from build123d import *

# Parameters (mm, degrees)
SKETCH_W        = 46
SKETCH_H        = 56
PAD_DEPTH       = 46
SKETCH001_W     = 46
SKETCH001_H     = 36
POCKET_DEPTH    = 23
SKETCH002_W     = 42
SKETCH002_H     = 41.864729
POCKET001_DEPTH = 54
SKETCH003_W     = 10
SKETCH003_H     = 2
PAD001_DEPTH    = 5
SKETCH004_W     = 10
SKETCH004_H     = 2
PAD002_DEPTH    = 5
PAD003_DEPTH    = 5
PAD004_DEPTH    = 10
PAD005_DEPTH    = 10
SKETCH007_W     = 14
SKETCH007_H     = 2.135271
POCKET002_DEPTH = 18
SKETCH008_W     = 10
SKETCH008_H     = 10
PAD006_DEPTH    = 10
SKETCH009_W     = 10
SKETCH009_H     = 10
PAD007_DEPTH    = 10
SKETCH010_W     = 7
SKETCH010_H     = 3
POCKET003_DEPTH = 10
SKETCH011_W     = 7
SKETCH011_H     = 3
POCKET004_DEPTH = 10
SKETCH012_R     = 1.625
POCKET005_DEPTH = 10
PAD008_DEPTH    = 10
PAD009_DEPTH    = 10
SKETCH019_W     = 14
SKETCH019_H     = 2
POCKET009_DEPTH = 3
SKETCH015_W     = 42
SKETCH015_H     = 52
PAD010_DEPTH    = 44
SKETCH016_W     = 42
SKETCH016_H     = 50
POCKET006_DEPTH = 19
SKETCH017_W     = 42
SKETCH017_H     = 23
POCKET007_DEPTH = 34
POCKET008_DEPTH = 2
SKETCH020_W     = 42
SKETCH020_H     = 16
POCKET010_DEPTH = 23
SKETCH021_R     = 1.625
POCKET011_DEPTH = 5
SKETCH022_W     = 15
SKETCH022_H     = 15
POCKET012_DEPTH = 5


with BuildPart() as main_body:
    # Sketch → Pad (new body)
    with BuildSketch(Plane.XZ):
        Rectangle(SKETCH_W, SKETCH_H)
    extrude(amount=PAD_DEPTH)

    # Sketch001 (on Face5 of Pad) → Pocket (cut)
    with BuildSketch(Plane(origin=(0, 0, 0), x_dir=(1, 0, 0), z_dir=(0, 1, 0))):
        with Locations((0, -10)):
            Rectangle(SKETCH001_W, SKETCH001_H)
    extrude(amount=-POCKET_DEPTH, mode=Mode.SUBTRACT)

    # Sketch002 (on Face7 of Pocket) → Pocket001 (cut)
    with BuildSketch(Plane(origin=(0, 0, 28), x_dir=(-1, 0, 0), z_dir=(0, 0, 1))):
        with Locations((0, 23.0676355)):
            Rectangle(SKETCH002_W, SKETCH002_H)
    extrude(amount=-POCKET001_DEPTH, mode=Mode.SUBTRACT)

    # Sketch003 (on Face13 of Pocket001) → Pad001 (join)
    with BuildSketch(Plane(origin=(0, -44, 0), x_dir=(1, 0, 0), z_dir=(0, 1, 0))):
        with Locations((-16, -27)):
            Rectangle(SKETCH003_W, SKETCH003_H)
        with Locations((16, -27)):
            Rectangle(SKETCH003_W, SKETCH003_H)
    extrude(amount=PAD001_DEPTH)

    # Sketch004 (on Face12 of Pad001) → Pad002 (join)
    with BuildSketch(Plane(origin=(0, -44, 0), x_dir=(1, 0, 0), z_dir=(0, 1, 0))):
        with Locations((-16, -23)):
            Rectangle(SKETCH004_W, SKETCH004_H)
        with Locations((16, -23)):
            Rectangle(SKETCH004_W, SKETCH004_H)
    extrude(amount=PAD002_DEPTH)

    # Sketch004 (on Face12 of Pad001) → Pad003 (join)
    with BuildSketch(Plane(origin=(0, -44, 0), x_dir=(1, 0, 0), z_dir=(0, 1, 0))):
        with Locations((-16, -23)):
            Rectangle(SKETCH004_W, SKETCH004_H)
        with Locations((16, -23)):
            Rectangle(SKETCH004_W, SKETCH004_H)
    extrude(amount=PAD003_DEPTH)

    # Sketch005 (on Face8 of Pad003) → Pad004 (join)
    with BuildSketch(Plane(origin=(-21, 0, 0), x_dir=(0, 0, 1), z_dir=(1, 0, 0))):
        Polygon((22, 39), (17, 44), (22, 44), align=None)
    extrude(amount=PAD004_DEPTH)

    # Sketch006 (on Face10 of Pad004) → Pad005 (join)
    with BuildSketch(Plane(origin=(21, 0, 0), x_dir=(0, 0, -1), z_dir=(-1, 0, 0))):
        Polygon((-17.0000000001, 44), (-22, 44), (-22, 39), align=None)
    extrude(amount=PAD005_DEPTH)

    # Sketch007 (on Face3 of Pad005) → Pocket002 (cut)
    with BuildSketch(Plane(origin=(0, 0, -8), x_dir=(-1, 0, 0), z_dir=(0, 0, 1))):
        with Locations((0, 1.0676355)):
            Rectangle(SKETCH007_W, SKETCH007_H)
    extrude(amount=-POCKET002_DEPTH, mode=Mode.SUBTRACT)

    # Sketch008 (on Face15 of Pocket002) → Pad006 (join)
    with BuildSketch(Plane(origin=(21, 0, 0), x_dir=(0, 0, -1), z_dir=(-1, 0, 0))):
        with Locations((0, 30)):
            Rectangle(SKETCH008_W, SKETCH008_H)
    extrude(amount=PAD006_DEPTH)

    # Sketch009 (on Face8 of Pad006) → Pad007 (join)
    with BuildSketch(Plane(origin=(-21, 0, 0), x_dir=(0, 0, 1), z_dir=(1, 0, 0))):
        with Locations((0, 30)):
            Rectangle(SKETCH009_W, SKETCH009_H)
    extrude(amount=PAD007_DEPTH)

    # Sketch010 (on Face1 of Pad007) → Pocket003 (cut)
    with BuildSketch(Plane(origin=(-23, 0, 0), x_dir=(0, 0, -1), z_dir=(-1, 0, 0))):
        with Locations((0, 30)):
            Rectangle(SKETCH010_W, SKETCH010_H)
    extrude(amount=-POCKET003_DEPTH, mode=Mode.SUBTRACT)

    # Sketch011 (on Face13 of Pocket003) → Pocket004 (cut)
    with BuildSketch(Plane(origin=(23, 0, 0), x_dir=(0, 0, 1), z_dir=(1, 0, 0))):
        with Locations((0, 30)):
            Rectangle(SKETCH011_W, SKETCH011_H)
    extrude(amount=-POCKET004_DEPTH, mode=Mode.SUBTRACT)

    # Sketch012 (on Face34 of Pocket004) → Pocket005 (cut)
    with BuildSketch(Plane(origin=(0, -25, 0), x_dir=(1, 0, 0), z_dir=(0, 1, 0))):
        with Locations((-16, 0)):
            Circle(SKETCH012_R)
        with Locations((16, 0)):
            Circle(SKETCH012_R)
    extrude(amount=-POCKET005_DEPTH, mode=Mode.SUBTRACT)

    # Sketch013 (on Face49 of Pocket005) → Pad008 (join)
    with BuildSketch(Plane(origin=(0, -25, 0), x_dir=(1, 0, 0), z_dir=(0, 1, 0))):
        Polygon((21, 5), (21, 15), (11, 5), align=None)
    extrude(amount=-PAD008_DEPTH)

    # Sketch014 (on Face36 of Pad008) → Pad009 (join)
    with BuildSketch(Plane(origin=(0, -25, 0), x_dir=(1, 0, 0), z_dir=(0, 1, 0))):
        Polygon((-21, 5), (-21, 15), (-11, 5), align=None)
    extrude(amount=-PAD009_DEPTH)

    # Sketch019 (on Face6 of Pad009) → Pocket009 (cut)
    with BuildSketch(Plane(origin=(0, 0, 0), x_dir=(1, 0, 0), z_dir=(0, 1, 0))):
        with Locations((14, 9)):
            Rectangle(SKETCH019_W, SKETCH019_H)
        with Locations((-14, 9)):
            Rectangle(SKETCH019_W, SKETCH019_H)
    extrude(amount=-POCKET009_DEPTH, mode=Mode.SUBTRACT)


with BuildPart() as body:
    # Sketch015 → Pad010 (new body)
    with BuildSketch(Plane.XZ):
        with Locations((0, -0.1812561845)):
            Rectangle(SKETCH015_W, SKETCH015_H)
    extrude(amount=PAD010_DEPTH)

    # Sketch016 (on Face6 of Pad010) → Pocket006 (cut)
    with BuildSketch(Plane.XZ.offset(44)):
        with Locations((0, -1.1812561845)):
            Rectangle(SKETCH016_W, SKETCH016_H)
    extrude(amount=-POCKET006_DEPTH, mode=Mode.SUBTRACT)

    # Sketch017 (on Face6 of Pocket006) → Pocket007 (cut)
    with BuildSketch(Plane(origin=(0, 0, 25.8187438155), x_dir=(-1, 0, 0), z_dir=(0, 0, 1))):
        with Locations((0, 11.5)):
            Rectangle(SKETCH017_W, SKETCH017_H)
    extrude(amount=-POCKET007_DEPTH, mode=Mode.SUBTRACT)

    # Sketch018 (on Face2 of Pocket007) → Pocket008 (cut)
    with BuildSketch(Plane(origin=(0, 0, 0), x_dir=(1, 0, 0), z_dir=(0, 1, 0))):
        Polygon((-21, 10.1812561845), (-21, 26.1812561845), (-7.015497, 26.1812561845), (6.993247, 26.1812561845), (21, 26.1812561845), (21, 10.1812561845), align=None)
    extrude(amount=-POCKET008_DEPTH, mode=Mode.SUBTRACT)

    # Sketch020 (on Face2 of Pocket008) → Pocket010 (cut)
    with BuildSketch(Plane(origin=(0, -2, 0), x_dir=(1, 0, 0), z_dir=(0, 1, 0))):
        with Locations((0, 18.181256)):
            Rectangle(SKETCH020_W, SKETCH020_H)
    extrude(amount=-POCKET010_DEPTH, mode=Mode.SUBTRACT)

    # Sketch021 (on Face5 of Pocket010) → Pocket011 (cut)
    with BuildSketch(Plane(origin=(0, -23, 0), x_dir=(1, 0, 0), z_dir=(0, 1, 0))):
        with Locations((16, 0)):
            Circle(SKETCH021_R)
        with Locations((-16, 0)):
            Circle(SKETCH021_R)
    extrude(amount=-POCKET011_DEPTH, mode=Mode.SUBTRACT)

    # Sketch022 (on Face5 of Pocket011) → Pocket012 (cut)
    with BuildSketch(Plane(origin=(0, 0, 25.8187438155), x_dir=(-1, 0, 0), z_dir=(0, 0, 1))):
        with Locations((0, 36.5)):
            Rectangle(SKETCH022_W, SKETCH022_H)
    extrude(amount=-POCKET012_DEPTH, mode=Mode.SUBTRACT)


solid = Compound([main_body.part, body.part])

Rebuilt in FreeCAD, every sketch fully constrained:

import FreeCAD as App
import Part
import Sketcher
Q = App.Units.Quantity

doc = App.newDocument("Part")
body = doc.addObject("PartDesign::Body", "Body")

sketch1 = doc.addObject("Sketcher::SketchObject", "Sketch")
body.addObject(sketch1)
sketch1.AttachmentSupport = (doc.XZ_Plane, [""])
sketch1.MapMode = "FlatFace"
sketch1.addGeometry([
    Part.LineSegment(App.Vector(-23, 28, 0), App.Vector(-23, -28, 0)),
    Part.LineSegment(App.Vector(-23, -28, 0), App.Vector(23, -28, 0)),
    Part.LineSegment(App.Vector(23, -28, 0), App.Vector(23, 28, 0)),
    Part.LineSegment(App.Vector(23, 28, 0), App.Vector(-23, 28, 0)),
], False)
sketch1.addConstraint([
    Sketcher.Constraint("Coincident", 0, 2, 1, 1),
    Sketcher.Constraint("Coincident", 1, 2, 2, 1),
    Sketcher.Constraint("Coincident", 2, 2, 3, 1),
    Sketcher.Constraint("Coincident", 3, 2, 0, 1),
    Sketcher.Constraint("Vertical", 0),
    Sketcher.Constraint("Horizontal", 1),
    Sketcher.Constraint("Vertical", 2),
    Sketcher.Constraint("Horizontal", 3),
    Sketcher.Constraint("Symmetric", 0, 2, 2, 2, -1, 1),
    Sketcher.Constraint("DistanceX", 1, 1, 1, 2, Q("46 mm")),
    Sketcher.Constraint("DistanceY", 0, 2, 0, 1, Q("56 mm")),
])
pad1 = doc.addObject("PartDesign::Pad", "Pad")
body.addObject(pad1)
pad1.Profile = sketch1
pad1.Length = 46

sketch2 = doc.addObject("Sketcher::SketchObject", "Sketch001")
body.addObject(sketch2)
sketch2.AttachmentSupport = (doc.XZ_Plane, [""])
sketch2.MapMode = "FlatFace"
sketch2.addGeometry([
    Part.LineSegment(App.Vector(-23, -8, 0), App.Vector(-23, 28, 0)),
    Part.LineSegment(App.Vector(-23, 28, 0), App.Vector(23, 28, 0)),
    Part.LineSegment(App.Vector(23, 28, 0), App.Vector(23, -8, 0)),
    Part.LineSegment(App.Vector(23, -8, 0), App.Vector(-23, -8, 0)),
], False)
sketch2.addConstraint([
    Sketcher.Constraint("Coincident", 0, 2, 1, 1),
    Sketcher.Constraint("Coincident", 1, 2, 2, 1),
    Sketcher.Constraint("Coincident", 2, 2, 3, 1),
    Sketcher.Constraint("Coincident", 3, 2, 0, 1),
    Sketcher.Constraint("Vertical", 0),
    Sketcher.Constraint("Horizontal", 1),
    Sketcher.Constraint("Vertical", 2),
    Sketcher.Constraint("Horizontal", 3),
    Sketcher.Constraint("DistanceX", 1, 1, 1, 2, Q("46 mm")),
    Sketcher.Constraint("DistanceY", 0, 1, 0, 2, Q("36 mm")),
    Sketcher.Constraint("DistanceX", 0, 2, -1, 1, Q("23 mm")),
    Sketcher.Constraint("DistanceY", -1, 1, 0, 2, Q("28 mm")),
])
pocket1 = doc.addObject("PartDesign::Pocket", "Pocket")
body.addObject(pocket1)
pocket1.Profile = sketch2
pocket1.Length = 23
pocket1.Reversed = True

sketch3 = doc.addObject("Sketcher::SketchObject", "Sketch002")
body.addObject(sketch3)
sketch3.AttachmentSupport = (doc.XY_Plane, [""])
sketch3.MapMode = "FlatFace"
sketch3.AttachmentOffset = App.Placement(App.Vector(0, 0, 28), App.Rotation())
sketch3.addGeometry([
    Part.LineSegment(App.Vector(21, -44, 0), App.Vector(21, -2, 0)),
    Part.LineSegment(App.Vector(21, -2, 0), App.Vector(-21, -2, 0)),
    Part.LineSegment(App.Vector(-21, -2, 0), App.Vector(-21, -44, 0)),
    Part.LineSegment(App.Vector(-21, -44, 0), App.Vector(21, -44, 0)),
], False)
sketch3.addConstraint([
    Sketcher.Constraint("Coincident", 0, 2, 1, 1),
    Sketcher.Constraint("Coincident", 1, 2, 2, 1),
    Sketcher.Constraint("Coincident", 2, 2, 3, 1),
    Sketcher.Constraint("Coincident", 3, 2, 0, 1),
    Sketcher.Constraint("Vertical", 0),
    Sketcher.Constraint("Horizontal", 1),
    Sketcher.Constraint("Vertical", 2),
    Sketcher.Constraint("Horizontal", 3),
    Sketcher.Constraint("DistanceX", 1, 2, 1, 1, Q("42 mm")),
    Sketcher.Constraint("DistanceX", -1, 1, 0, 2, Q("21 mm")),
    Sketcher.Constraint("DistanceY", 2, 2, -1, 1, Q("44 mm")),
    Sketcher.Constraint("DistanceY", 0, 1, 0, 2, Q("41.864729 mm")),
])
pocket2 = doc.addObject("PartDesign::Pocket", "Pocket001")
body.addObject(pocket2)
pocket2.Profile = sketch3
pocket2.Length = 54

sketch4 = doc.addObject("Sketcher::SketchObject", "Sketch003")
body.addObject(sketch4)
sketch4.AttachmentSupport = (doc.XZ_Plane, [""])
sketch4.MapMode = "FlatFace"
sketch4.AttachmentOffset = App.Placement(App.Vector(0, 0, 44), App.Rotation())
sketch4.addGeometry([
    Part.LineSegment(App.Vector(-21, 26, 0), App.Vector(-21, 28, 0)),
    Part.LineSegment(App.Vector(-21, 28, 0), App.Vector(-11, 28, 0)),
    Part.LineSegment(App.Vector(-11, 28, 0), App.Vector(-11, 26, 0)),
    Part.LineSegment(App.Vector(-11, 26, 0), App.Vector(-21, 26, 0)),
    Part.LineSegment(App.Vector(11, 26, 0), App.Vector(11, 28, 0)),
    Part.LineSegment(App.Vector(11, 28, 0), App.Vector(21, 28, 0)),
    Part.LineSegment(App.Vector(21, 28, 0), App.Vector(21, 26, 0)),
    Part.LineSegment(App.Vector(21, 26, 0), App.Vector(11, 26, 0)),
], False)
sketch4.addConstraint([
    Sketcher.Constraint("Coincident", 0, 2, 1, 1),
    Sketcher.Constraint("Coincident", 1, 2, 2, 1),
    Sketcher.Constraint("Coincident", 2, 2, 3, 1),
    Sketcher.Constraint("Coincident", 3, 2, 0, 1),
    Sketcher.Constraint("Coincident", 4, 2, 5, 1),
    Sketcher.Constraint("Coincident", 5, 2, 6, 1),
    Sketcher.Constraint("Coincident", 6, 2, 7, 1),
    Sketcher.Constraint("Coincident", 7, 2, 4, 1),
    Sketcher.Constraint("Vertical", 0),
    Sketcher.Constraint("Horizontal", 1),
    Sketcher.Constraint("Vertical", 2),
    Sketcher.Constraint("Horizontal", 3),
    Sketcher.Constraint("Vertical", 4),
    Sketcher.Constraint("Horizontal", 5),
    Sketcher.Constraint("Vertical", 6),
    Sketcher.Constraint("Horizontal", 7),
    Sketcher.Constraint("Symmetric", 1, 2, 4, 2, -2),
    Sketcher.Constraint("Symmetric", 3, 2, 6, 2, -2),
    Sketcher.Constraint("DistanceX", 1, 1, 1, 2, Q("10 mm")),
    Sketcher.Constraint("DistanceY", 0, 1, 0, 2, Q("2 mm")),
    Sketcher.Constraint("DistanceX", 0, 2, -1, 1, Q("21 mm")),
    Sketcher.Constraint("DistanceY", -1, 1, 0, 2, Q("28 mm")),
])
pad2 = doc.addObject("PartDesign::Pad", "Pad001")
body.addObject(pad2)
pad2.Profile = sketch4
pad2.Length = 5
pad2.Reversed = True

sketch5 = doc.addObject("Sketcher::SketchObject", "Sketch004")
body.addObject(sketch5)
sketch5.AttachmentSupport = (doc.XZ_Plane, [""])
sketch5.MapMode = "FlatFace"
sketch5.AttachmentOffset = App.Placement(App.Vector(0, 0, 44), App.Rotation())
sketch5.addGeometry([
    Part.LineSegment(App.Vector(-21, 22, 0), App.Vector(-21, 24, 0)),
    Part.LineSegment(App.Vector(-21, 24, 0), App.Vector(-11, 24, 0)),
    Part.LineSegment(App.Vector(-11, 24, 0), App.Vector(-11, 22, 0)),
    Part.LineSegment(App.Vector(-11, 22, 0), App.Vector(-21, 22, 0)),
    Part.LineSegment(App.Vector(11, 22, 0), App.Vector(11, 24, 0)),
    Part.LineSegment(App.Vector(11, 24, 0), App.Vector(21, 24, 0)),
    Part.LineSegment(App.Vector(21, 24, 0), App.Vector(21, 22, 0)),
    Part.LineSegment(App.Vector(21, 22, 0), App.Vector(11, 22, 0)),
], False)
sketch5.addConstraint([
    Sketcher.Constraint("Coincident", 0, 2, 1, 1),
    Sketcher.Constraint("Coincident", 1, 2, 2, 1),
    Sketcher.Constraint("Coincident", 2, 2, 3, 1),
    Sketcher.Constraint("Coincident", 3, 2, 0, 1),
    Sketcher.Constraint("Coincident", 4, 2, 5, 1),
    Sketcher.Constraint("Coincident", 5, 2, 6, 1),
    Sketcher.Constraint("Coincident", 6, 2, 7, 1),
    Sketcher.Constraint("Coincident", 7, 2, 4, 1),
    Sketcher.Constraint("Vertical", 0),
    Sketcher.Constraint("Horizontal", 1),
    Sketcher.Constraint("Vertical", 2),
    Sketcher.Constraint("Horizontal", 3),
    Sketcher.Constraint("Vertical", 4),
    Sketcher.Constraint("Horizontal", 5),
    Sketcher.Constraint("Vertical", 6),
    Sketcher.Constraint("Horizontal", 7),
    Sketcher.Constraint("Symmetric", 1, 2, 4, 2, -2),
    Sketcher.Constraint("Symmetric", 3, 2, 6, 2, -2),
    Sketcher.Constraint("DistanceX", 1, 1, 1, 2, Q("10 mm")),
    Sketcher.Constraint("DistanceY", 0, 1, 0, 2, Q("2 mm")),
    Sketcher.Constraint("DistanceX", 0, 2, -1, 1, Q("21 mm")),
    Sketcher.Constraint("DistanceY", -1, 1, 0, 2, Q("24 mm")),
])
pad3 = doc.addObject("PartDesign::Pad", "Pad002")
body.addObject(pad3)
pad3.Profile = sketch5
pad3.Length = 5
pad3.Reversed = True

sketch6 = doc.addObject("Sketcher::SketchObject", "Sketch005")
body.addObject(sketch6)
sketch6.AttachmentSupport = (doc.XZ_Plane, [""])
sketch6.MapMode = "FlatFace"
sketch6.AttachmentOffset = App.Placement(App.Vector(0, 0, 44), App.Rotation())
sketch6.addGeometry([
    Part.LineSegment(App.Vector(-21, 22, 0), App.Vector(-21, 24, 0)),
    Part.LineSegment(App.Vector(-21, 24, 0), App.Vector(-11, 24, 0)),
    Part.LineSegment(App.Vector(-11, 24, 0), App.Vector(-11, 22, 0)),
    Part.LineSegment(App.Vector(-11, 22, 0), App.Vector(-21, 22, 0)),
    Part.LineSegment(App.Vector(11, 22, 0), App.Vector(11, 24, 0)),
    Part.LineSegment(App.Vector(11, 24, 0), App.Vector(21, 24, 0)),
    Part.LineSegment(App.Vector(21, 24, 0), App.Vector(21, 22, 0)),
    Part.LineSegment(App.Vector(21, 22, 0), App.Vector(11, 22, 0)),
], False)
sketch6.addConstraint([
    Sketcher.Constraint("Coincident", 0, 2, 1, 1),
    Sketcher.Constraint("Coincident", 1, 2, 2, 1),
    Sketcher.Constraint("Coincident", 2, 2, 3, 1),
    Sketcher.Constraint("Coincident", 3, 2, 0, 1),
    Sketcher.Constraint("Coincident", 4, 2, 5, 1),
    Sketcher.Constraint("Coincident", 5, 2, 6, 1),
    Sketcher.Constraint("Coincident", 6, 2, 7, 1),
    Sketcher.Constraint("Coincident", 7, 2, 4, 1),
    Sketcher.Constraint("Vertical", 0),
    Sketcher.Constraint("Horizontal", 1),
    Sketcher.Constraint("Vertical", 2),
    Sketcher.Constraint("Horizontal", 3),
    Sketcher.Constraint("Vertical", 4),
    Sketcher.Constraint("Horizontal", 5),
    Sketcher.Constraint("Vertical", 6),
    Sketcher.Constraint("Horizontal", 7),
    Sketcher.Constraint("Symmetric", 1, 2, 4, 2, -2),
    Sketcher.Constraint("Symmetric", 3, 2, 6, 2, -2),
    Sketcher.Constraint("DistanceX", 1, 1, 1, 2, Q("10 mm")),
    Sketcher.Constraint("DistanceY", 0, 1, 0, 2, Q("2 mm")),
    Sketcher.Constraint("DistanceX", 0, 2, -1, 1, Q("21 mm")),
    Sketcher.Constraint("DistanceY", -1, 1, 0, 2, Q("24 mm")),
])
pad4 = doc.addObject("PartDesign::Pad", "Pad003")
body.addObject(pad4)
pad4.Profile = sketch6
pad4.Length = 5
pad4.Reversed = True

sketch7 = doc.addObject("Sketcher::SketchObject", "Sketch006")
body.addObject(sketch7)
sketch7.AttachmentSupport = (doc.YZ_Plane, [""])
sketch7.MapMode = "FlatFace"
sketch7.AttachmentOffset = App.Placement(App.Vector(0, 0, -21), App.Rotation())
sketch7.addGeometry([
    Part.LineSegment(App.Vector(-44, 17, 0), App.Vector(-39, 22, 0)),
    Part.LineSegment(App.Vector(-39, 22, 0), App.Vector(-44, 22, 0)),
    Part.LineSegment(App.Vector(-44, 22, 0), App.Vector(-44, 17, 0)),
], False)
sketch7.addConstraint([
    Sketcher.Constraint("Coincident", 0, 2, 1, 1),
    Sketcher.Constraint("Coincident", 1, 2, 2, 1),
    Sketcher.Constraint("Coincident", 2, 2, 0, 1),
    Sketcher.Constraint("Horizontal", 1),
    Sketcher.Constraint("Vertical", 2),
    Sketcher.Constraint("Equal", 1, 2),
    Sketcher.Constraint("DistanceX", 1, 2, 1, 1, Q("5 mm")),
    Sketcher.Constraint("DistanceX", 0, 2, -1, 1, Q("39 mm")),
    Sketcher.Constraint("DistanceY", -1, 1, 0, 2, Q("22 mm")),
])
pad5 = doc.addObject("PartDesign::Pad", "Pad004")
body.addObject(pad5)
pad5.Profile = sketch7
pad5.Length = 10

sketch8 = doc.addObject("Sketcher::SketchObject", "Sketch007")
body.addObject(sketch8)
sketch8.AttachmentSupport = (doc.YZ_Plane, [""])
sketch8.MapMode = "FlatFace"
sketch8.AttachmentOffset = App.Placement(App.Vector(0, 0, 21), App.Rotation())
sketch8.addGeometry([
    Part.LineSegment(App.Vector(-44, 17, 0), App.Vector(-44, 22, 0)),
    Part.LineSegment(App.Vector(-44, 22, 0), App.Vector(-39, 22, 0)),
    Part.LineSegment(App.Vector(-39, 22, 0), App.Vector(-44, 17, 0)),
], False)
sketch8.addConstraint([
    Sketcher.Constraint("Coincident", 0, 2, 1, 1),
    Sketcher.Constraint("Coincident", 1, 2, 2, 1),
    Sketcher.Constraint("Coincident", 2, 2, 0, 1),
    Sketcher.Constraint("Vertical", 0),
    Sketcher.Constraint("Horizontal", 1),
    Sketcher.Constraint("Equal", 1, 0),
    Sketcher.Constraint("DistanceX", 1, 1, 1, 2, Q("5 mm")),
    Sketcher.Constraint("DistanceX", 0, 2, -1, 1, Q("44 mm")),
    Sketcher.Constraint("DistanceY", -1, 1, 0, 2, Q("22 mm")),
])
pad6 = doc.addObject("PartDesign::Pad", "Pad005")
body.addObject(pad6)
pad6.Profile = sketch8
pad6.Length = 10
pad6.Reversed = True

sketch9 = doc.addObject("Sketcher::SketchObject", "Sketch008")
body.addObject(sketch9)
sketch9.AttachmentSupport = (doc.XY_Plane, [""])
sketch9.MapMode = "FlatFace"
sketch9.AttachmentOffset = App.Placement(App.Vector(0, 0, -8), App.Rotation())
sketch9.addGeometry([
    Part.LineSegment(App.Vector(7, -2.1, 0), App.Vector(7, 0, 0)),
    Part.LineSegment(App.Vector(7, 0, 0), App.Vector(-7, 0, 0)),
    Part.LineSegment(App.Vector(-7, 0, 0), App.Vector(-7, -2.1, 0)),
    Part.LineSegment(App.Vector(-7, -2.1, 0), App.Vector(7, -2.1, 0)),
], False)
sketch9.addConstraint([
    Sketcher.Constraint("Coincident", 0, 2, 1, 1),
    Sketcher.Constraint("Coincident", 1, 2, 2, 1),
    Sketcher.Constraint("Coincident", 2, 2, 3, 1),
    Sketcher.Constraint("Coincident", 3, 2, 0, 1),
    Sketcher.Constraint("Vertical", 0),
    Sketcher.Constraint("Horizontal", 1),
    Sketcher.Constraint("Vertical", 2),
    Sketcher.Constraint("Horizontal", 3),
    Sketcher.Constraint("Symmetric", 0, 2, 1, 2, -1, 1),
    Sketcher.Constraint("DistanceX", 1, 2, 1, 1, Q("14 mm")),
    Sketcher.Constraint("DistanceY", 0, 1, 0, 2, Q("2.135271 mm")),
])
pocket3 = doc.addObject("PartDesign::Pocket", "Pocket002")
body.addObject(pocket3)
pocket3.Profile = sketch9
pocket3.Length = 18

sketch10 = doc.addObject("Sketcher::SketchObject", "Sketch009")
body.addObject(sketch10)
sketch10.AttachmentSupport = (doc.YZ_Plane, [""])
sketch10.MapMode = "FlatFace"
sketch10.AttachmentOffset = App.Placement(App.Vector(0, 0, 21), App.Rotation())
sketch10.addGeometry([
    Part.LineSegment(App.Vector(-35, 5, 0), App.Vector(-25, 5, 0)),
    Part.LineSegment(App.Vector(-25, 5, 0), App.Vector(-25, -5, 0)),
    Part.LineSegment(App.Vector(-25, -5, 0), App.Vector(-35, -5, 0)),
    Part.LineSegment(App.Vector(-35, -5, 0), App.Vector(-35, 5, 0)),
], False)
sketch10.addConstraint([
    Sketcher.Constraint("Coincident", 0, 2, 1, 1),
    Sketcher.Constraint("Coincident", 1, 2, 2, 1),
    Sketcher.Constraint("Coincident", 2, 2, 3, 1),
    Sketcher.Constraint("Coincident", 3, 2, 0, 1),
    Sketcher.Constraint("Horizontal", 0),
    Sketcher.Constraint("Vertical", 1),
    Sketcher.Constraint("Horizontal", 2),
    Sketcher.Constraint("Vertical", 3),
    Sketcher.Constraint("Equal", 2, 1),
    Sketcher.Constraint("DistanceX", 0, 1, 0, 2, Q("10 mm")),
    Sketcher.Constraint("DistanceX", 0, 2, -1, 1, Q("25 mm")),
    Sketcher.Constraint("DistanceY", -1, 1, 0, 2, Q("5 mm")),
])
pad7 = doc.addObject("PartDesign::Pad", "Pad006")
body.addObject(pad7)
pad7.Profile = sketch10
pad7.Length = 10
pad7.Reversed = True

sketch11 = doc.addObject("Sketcher::SketchObject", "Sketch010")
body.addObject(sketch11)
sketch11.AttachmentSupport = (doc.YZ_Plane, [""])
sketch11.MapMode = "FlatFace"
sketch11.AttachmentOffset = App.Placement(App.Vector(0, 0, -21), App.Rotation())
sketch11.addGeometry([
    Part.LineSegment(App.Vector(-35, -5, 0), App.Vector(-25, -5, 0)),
    Part.LineSegment(App.Vector(-25, -5, 0), App.Vector(-25, 5, 0)),
    Part.LineSegment(App.Vector(-25, 5, 0), App.Vector(-35, 5, 0)),
    Part.LineSegment(App.Vector(-35, 5, 0), App.Vector(-35, -5, 0)),
], False)
sketch11.addConstraint([
    Sketcher.Constraint("Coincident", 0, 2, 1, 1),
    Sketcher.Constraint("Coincident", 1, 2, 2, 1),
    Sketcher.Constraint("Coincident", 2, 2, 3, 1),
    Sketcher.Constraint("Coincident", 3, 2, 0, 1),
    Sketcher.Constraint("Horizontal", 0),
    Sketcher.Constraint("Vertical", 1),
    Sketcher.Constraint("Horizontal", 2),
    Sketcher.Constraint("Vertical", 3),
    Sketcher.Constraint("Equal", 2, 1),
    Sketcher.Constraint("DistanceX", 0, 1, 0, 2, Q("10 mm")),
    Sketcher.Constraint("DistanceX", 0, 2, -1, 1, Q("25 mm")),
    Sketcher.Constraint("DistanceY", 0, 2, -1, 1, Q("5 mm")),
])
pad8 = doc.addObject("PartDesign::Pad", "Pad007")
body.addObject(pad8)
pad8.Profile = sketch11
pad8.Length = 10

sketch12 = doc.addObject("Sketcher::SketchObject", "Sketch011")
body.addObject(sketch12)
sketch12.AttachmentSupport = (doc.YZ_Plane, [""])
sketch12.MapMode = "FlatFace"
sketch12.AttachmentOffset = App.Placement(App.Vector(0, 0, -23), App.Rotation())
sketch12.addGeometry([
    Part.LineSegment(App.Vector(-31.5, 3.5, 0), App.Vector(-28.5, 3.5, 0)),
    Part.LineSegment(App.Vector(-28.5, 3.5, 0), App.Vector(-28.5, -3.5, 0)),
    Part.LineSegment(App.Vector(-28.5, -3.5, 0), App.Vector(-31.5, -3.5, 0)),
    Part.LineSegment(App.Vector(-31.5, -3.5, 0), App.Vector(-31.5, 3.5, 0)),
], False)
sketch12.addConstraint([
    Sketcher.Constraint("Coincident", 0, 2, 1, 1),
    Sketcher.Constraint("Coincident", 1, 2, 2, 1),
    Sketcher.Constraint("Coincident", 2, 2, 3, 1),
    Sketcher.Constraint("Coincident", 3, 2, 0, 1),
    Sketcher.Constraint("Horizontal", 0),
    Sketcher.Constraint("Vertical", 1),
    Sketcher.Constraint("Horizontal", 2),
    Sketcher.Constraint("Vertical", 3),
    Sketcher.Constraint("DistanceX", 0, 1, 0, 2, Q("3 mm")),
    Sketcher.Constraint("DistanceY", 1, 2, 1, 1, Q("7 mm")),
    Sketcher.Constraint("DistanceX", 0, 2, -1, 1, Q("28.5 mm")),
    Sketcher.Constraint("DistanceY", -1, 1, 0, 2, Q("3.5 mm")),
])
pocket4 = doc.addObject("PartDesign::Pocket", "Pocket003")
body.addObject(pocket4)
pocket4.Profile = sketch12
pocket4.Length = 10
pocket4.Reversed = True

sketch13 = doc.addObject("Sketcher::SketchObject", "Sketch012")
body.addObject(sketch13)
sketch13.AttachmentSupport = (doc.YZ_Plane, [""])
sketch13.MapMode = "FlatFace"
sketch13.AttachmentOffset = App.Placement(App.Vector(0, 0, 23), App.Rotation())
sketch13.addGeometry([
    Part.LineSegment(App.Vector(-31.5, -3.5, 0), App.Vector(-28.5, -3.5, 0)),
    Part.LineSegment(App.Vector(-28.5, -3.5, 0), App.Vector(-28.5, 3.5, 0)),
    Part.LineSegment(App.Vector(-28.5, 3.5, 0), App.Vector(-31.5, 3.5, 0)),
    Part.LineSegment(App.Vector(-31.5, 3.5, 0), App.Vector(-31.5, -3.5, 0)),
], False)
sketch13.addConstraint([
    Sketcher.Constraint("Coincident", 0, 2, 1, 1),
    Sketcher.Constraint("Coincident", 1, 2, 2, 1),
    Sketcher.Constraint("Coincident", 2, 2, 3, 1),
    Sketcher.Constraint("Coincident", 3, 2, 0, 1),
    Sketcher.Constraint("Horizontal", 0),
    Sketcher.Constraint("Vertical", 1),
    Sketcher.Constraint("Horizontal", 2),
    Sketcher.Constraint("Vertical", 3),
    Sketcher.Constraint("DistanceX", 0, 1, 0, 2, Q("3 mm")),
    Sketcher.Constraint("DistanceY", 1, 1, 1, 2, Q("7 mm")),
    Sketcher.Constraint("DistanceX", 0, 2, -1, 1, Q("28.5 mm")),
    Sketcher.Constraint("DistanceY", 0, 2, -1, 1, Q("3.5 mm")),
])
pocket5 = doc.addObject("PartDesign::Pocket", "Pocket004")
body.addObject(pocket5)
pocket5.Profile = sketch13
pocket5.Length = 10

sketch14 = doc.addObject("Sketcher::SketchObject", "Sketch013")
body.addObject(sketch14)
sketch14.AttachmentSupport = (doc.XZ_Plane, [""])
sketch14.MapMode = "FlatFace"
sketch14.AttachmentOffset = App.Placement(App.Vector(0, 0, 25), App.Rotation())
sketch14.addGeometry([
    Part.Circle(App.Vector(-16, 0, 0), App.Vector(0, 0, 1), 1.6),
    Part.Circle(App.Vector(16, 0, 0), App.Vector(0, 0, 1), 1.6),
], False)
sketch14.addConstraint([
    Sketcher.Constraint("Equal", 0, 1),
    Sketcher.Constraint("Symmetric", 0, 3, 1, 3, -1, 1),
    Sketcher.Constraint("PointOnObject", 0, 3, -1),
    Sketcher.Constraint("Diameter", 0, Q("3.25 mm")),
    Sketcher.Constraint("DistanceX", 0, 3, -1, 1, Q("16 mm")),
])
pocket6 = doc.addObject("PartDesign::Pocket", "Pocket005")
body.addObject(pocket6)
pocket6.Profile = sketch14
pocket6.Length = 10
pocket6.Reversed = True

sketch15 = doc.addObject("Sketcher::SketchObject", "Sketch014")
body.addObject(sketch15)
sketch15.AttachmentSupport = (doc.XZ_Plane, [""])
sketch15.MapMode = "FlatFace"
sketch15.AttachmentOffset = App.Placement(App.Vector(0, 0, 25), App.Rotation())
sketch15.addGeometry([
    Part.LineSegment(App.Vector(21, -5, 0), App.Vector(21, -15, 0)),
    Part.LineSegment(App.Vector(21, -15, 0), App.Vector(11, -5, 0)),
    Part.LineSegment(App.Vector(11, -5, 0), App.Vector(21, -5, 0)),
], False)
sketch15.addConstraint([
    Sketcher.Constraint("Coincident", 0, 2, 1, 1),
    Sketcher.Constraint("Coincident", 1, 2, 2, 1),
    Sketcher.Constraint("Coincident", 2, 2, 0, 1),
    Sketcher.Constraint("Vertical", 0),
    Sketcher.Constraint("Horizontal", 2),
    Sketcher.Constraint("Equal", 2, 0),
    Sketcher.Constraint("DistanceX", 2, 1, 2, 2, Q("10 mm")),
    Sketcher.Constraint("DistanceX", -1, 1, 0, 2, Q("21 mm")),
    Sketcher.Constraint("DistanceY", 0, 2, -1, 1, Q("15 mm")),
])
pad9 = doc.addObject("PartDesign::Pad", "Pad008")
body.addObject(pad9)
pad9.Profile = sketch15
pad9.Length = 10

sketch16 = doc.addObject("Sketcher::SketchObject", "Sketch015")
body.addObject(sketch16)
sketch16.AttachmentSupport = (doc.XZ_Plane, [""])
sketch16.MapMode = "FlatFace"
sketch16.AttachmentOffset = App.Placement(App.Vector(0, 0, 25), App.Rotation())
sketch16.addGeometry([
    Part.LineSegment(App.Vector(-21, -15, 0), App.Vector(-21, -5, 0)),
    Part.LineSegment(App.Vector(-21, -5, 0), App.Vector(-11, -5, 0)),
    Part.LineSegment(App.Vector(-11, -5, 0), App.Vector(-21, -15, 0)),
], False)
sketch16.addConstraint([
    Sketcher.Constraint("Coincident", 0, 2, 1, 1),
    Sketcher.Constraint("Coincident", 1, 2, 2, 1),
    Sketcher.Constraint("Coincident", 2, 2, 0, 1),
    Sketcher.Constraint("Vertical", 0),
    Sketcher.Constraint("Horizontal", 1),
    Sketcher.Constraint("Equal", 1, 0),
    Sketcher.Constraint("DistanceX", 1, 1, 1, 2, Q("10 mm")),
    Sketcher.Constraint("DistanceX", 0, 2, -1, 1, Q("21 mm")),
    Sketcher.Constraint("DistanceY", 0, 2, -1, 1, Q("5 mm")),
])
pad10 = doc.addObject("PartDesign::Pad", "Pad009")
body.addObject(pad10)
pad10.Profile = sketch16
pad10.Length = 10

sketch17 = doc.addObject("Sketcher::SketchObject", "Sketch016")
body.addObject(sketch17)
sketch17.AttachmentSupport = (doc.XZ_Plane, [""])
sketch17.MapMode = "FlatFace"
sketch17.addGeometry([
    Part.LineSegment(App.Vector(7, -10, 0), App.Vector(7, -8, 0)),
    Part.LineSegment(App.Vector(7, -8, 0), App.Vector(21, -8, 0)),
    Part.LineSegment(App.Vector(21, -8, 0), App.Vector(21, -10, 0)),
    Part.LineSegment(App.Vector(21, -10, 0), App.Vector(7, -10, 0)),
    Part.LineSegment(App.Vector(-21, -10, 0), App.Vector(-21, -8, 0)),
    Part.LineSegment(App.Vector(-21, -8, 0), App.Vector(-7, -8, 0)),
    Part.LineSegment(App.Vector(-7, -8, 0), App.Vector(-7, -10, 0)),
    Part.LineSegment(App.Vector(-7, -10, 0), App.Vector(-21, -10, 0)),
], False)
sketch17.addConstraint([
    Sketcher.Constraint("Coincident", 0, 2, 1, 1),
    Sketcher.Constraint("Coincident", 1, 2, 2, 1),
    Sketcher.Constraint("Coincident", 2, 2, 3, 1),
    Sketcher.Constraint("Coincident", 3, 2, 0, 1),
    Sketcher.Constraint("Coincident", 4, 2, 5, 1),
    Sketcher.Constraint("Coincident", 5, 2, 6, 1),
    Sketcher.Constraint("Coincident", 6, 2, 7, 1),
    Sketcher.Constraint("Coincident", 7, 2, 4, 1),
    Sketcher.Constraint("Vertical", 0),
    Sketcher.Constraint("Horizontal", 1),
    Sketcher.Constraint("Vertical", 2),
    Sketcher.Constraint("Horizontal", 3),
    Sketcher.Constraint("Vertical", 4),
    Sketcher.Constraint("Horizontal", 5),
    Sketcher.Constraint("Vertical", 6),
    Sketcher.Constraint("Horizontal", 7),
    Sketcher.Constraint("Symmetric", 1, 2, 4, 2, -2),
    Sketcher.Constraint("Symmetric", 3, 2, 6, 2, -2),
    Sketcher.Constraint("DistanceX", 1, 1, 1, 2, Q("14 mm")),
    Sketcher.Constraint("DistanceY", 0, 1, 0, 2, Q("2 mm")),
    Sketcher.Constraint("DistanceX", -1, 1, 0, 2, Q("7 mm")),
    Sketcher.Constraint("DistanceY", 0, 2, -1, 1, Q("8 mm")),
])
pocket7 = doc.addObject("PartDesign::Pocket", "Pocket006")
body.addObject(pocket7)
pocket7.Profile = sketch17
pocket7.Length = 3
pocket7.Reversed = True
body2 = doc.addObject("PartDesign::Body", "Body001")

sketch18 = doc.addObject("Sketcher::SketchObject", "Sketch017")
body2.addObject(sketch18)
sketch18.AttachmentSupport = (doc.getObject("XZ_Plane001"), [""])
sketch18.MapMode = "FlatFace"
sketch18.addGeometry([
    Part.LineSegment(App.Vector(-21, 26, 0), App.Vector(-21, -26, 0)),
    Part.LineSegment(App.Vector(-21, -26, 0), App.Vector(21, -26, 0)),
    Part.LineSegment(App.Vector(21, -26, 0), App.Vector(21, 26, 0)),
    Part.LineSegment(App.Vector(21, 26, 0), App.Vector(-21, 26, 0)),
], False)
sketch18.addConstraint([
    Sketcher.Constraint("Coincident", 0, 2, 1, 1),
    Sketcher.Constraint("Coincident", 1, 2, 2, 1),
    Sketcher.Constraint("Coincident", 2, 2, 3, 1),
    Sketcher.Constraint("Coincident", 3, 2, 0, 1),
    Sketcher.Constraint("Vertical", 0),
    Sketcher.Constraint("Horizontal", 1),
    Sketcher.Constraint("Vertical", 2),
    Sketcher.Constraint("Horizontal", 3),
    Sketcher.Constraint("DistanceX", 1, 1, 1, 2, Q("42 mm")),
    Sketcher.Constraint("DistanceY", 0, 2, 0, 1, Q("52 mm")),
    Sketcher.Constraint("DistanceX", 0, 2, -1, 1, Q("21 mm")),
    Sketcher.Constraint("DistanceY", 0, 2, -1, 1, Q("26.181256 mm")),
])
pad11 = doc.addObject("PartDesign::Pad", "Pad010")
body2.addObject(pad11)
pad11.Profile = sketch18
pad11.Length = 44

sketch19 = doc.addObject("Sketcher::SketchObject", "Sketch018")
body2.addObject(sketch19)
sketch19.AttachmentSupport = (doc.getObject("XZ_Plane001"), [""])
sketch19.MapMode = "FlatFace"
sketch19.AttachmentOffset = App.Placement(App.Vector(0, 0, 44), App.Rotation())
sketch19.addGeometry([
    Part.LineSegment(App.Vector(-21, 24, 0), App.Vector(-21, -26, 0)),
    Part.LineSegment(App.Vector(-21, -26, 0), App.Vector(21, -26, 0)),
    Part.LineSegment(App.Vector(21, -26, 0), App.Vector(21, 24, 0)),
    Part.LineSegment(App.Vector(21, 24, 0), App.Vector(-21, 24, 0)),
], False)
sketch19.addConstraint([
    Sketcher.Constraint("Coincident", 0, 2, 1, 1),
    Sketcher.Constraint("Coincident", 1, 2, 2, 1),
    Sketcher.Constraint("Coincident", 2, 2, 3, 1),
    Sketcher.Constraint("Coincident", 3, 2, 0, 1),
    Sketcher.Constraint("Vertical", 0),
    Sketcher.Constraint("Horizontal", 1),
    Sketcher.Constraint("Vertical", 2),
    Sketcher.Constraint("Horizontal", 3),
    Sketcher.Constraint("DistanceX", 1, 1, 1, 2, Q("42 mm")),
    Sketcher.Constraint("DistanceY", 0, 2, 0, 1, Q("50 mm")),
    Sketcher.Constraint("DistanceX", 0, 2, -1, 1, Q("21 mm")),
    Sketcher.Constraint("DistanceY", 0, 2, -1, 1, Q("26.181256 mm")),
])
pocket8 = doc.addObject("PartDesign::Pocket", "Pocket007")
body2.addObject(pocket8)
pocket8.Profile = sketch19
pocket8.Length = 19

sketch20 = doc.addObject("Sketcher::SketchObject", "Sketch019")
body2.addObject(sketch20)
sketch20.AttachmentSupport = (doc.getObject("XY_Plane001"), [""])
sketch20.MapMode = "FlatFace"
sketch20.AttachmentOffset = App.Placement(App.Vector(0, 0, 25.818744), App.Rotation())
sketch20.addGeometry([
    Part.LineSegment(App.Vector(21, -23, 0), App.Vector(21, 0, 0)),
    Part.LineSegment(App.Vector(21, 0, 0), App.Vector(-21, 0, 0)),
    Part.LineSegment(App.Vector(-21, 0, 0), App.Vector(-21, -23, 0)),
    Part.LineSegment(App.Vector(-21, -23, 0), App.Vector(21, -23, 0)),
], False)
sketch20.addConstraint([
    Sketcher.Constraint("Coincident", 0, 2, 1, 1),
    Sketcher.Constraint("Coincident", 1, 2, 2, 1),
    Sketcher.Constraint("Coincident", 2, 2, 3, 1),
    Sketcher.Constraint("Coincident", 3, 2, 0, 1),
    Sketcher.Constraint("Vertical", 0),
    Sketcher.Constraint("Horizontal", 1),
    Sketcher.Constraint("Vertical", 2),
    Sketcher.Constraint("Horizontal", 3),
    Sketcher.Constraint("Symmetric", 0, 2, 1, 2, -1, 1),
    Sketcher.Constraint("DistanceX", 1, 2, 1, 1, Q("42 mm")),
    Sketcher.Constraint("DistanceY", 0, 1, 0, 2, Q("23 mm")),
])
pocket9 = doc.addObject("PartDesign::Pocket", "Pocket008")
body2.addObject(pocket9)
pocket9.Profile = sketch20
pocket9.Length = 34

sketch21 = doc.addObject("Sketcher::SketchObject", "Sketch020")
body2.addObject(sketch21)
sketch21.AttachmentSupport = (doc.getObject("XZ_Plane001"), [""])
sketch21.MapMode = "FlatFace"
sketch21.addGeometry([
    Part.LineSegment(App.Vector(-21, -26, 0), App.Vector(-21, -10, 0)),
    Part.LineSegment(App.Vector(-21, -10, 0), App.Vector(21, -10, 0)),
    Part.LineSegment(App.Vector(21, -10, 0), App.Vector(21, -26, 0)),
    Part.LineSegment(App.Vector(21, -26, 0), App.Vector(-21, -26, 0)),
], False)
sketch21.addConstraint([
    Sketcher.Constraint("Coincident", 0, 2, 1, 1),
    Sketcher.Constraint("Coincident", 1, 2, 2, 1),
    Sketcher.Constraint("Coincident", 2, 2, 3, 1),
    Sketcher.Constraint("Coincident", 3, 2, 0, 1),
    Sketcher.Constraint("Vertical", 0),
    Sketcher.Constraint("Horizontal", 1),
    Sketcher.Constraint("Vertical", 2),
    Sketcher.Constraint("Horizontal", 3),
    Sketcher.Constraint("DistanceX", 1, 1, 1, 2, Q("42 mm")),
    Sketcher.Constraint("DistanceY", 0, 1, 0, 2, Q("16 mm")),
    Sketcher.Constraint("DistanceX", 0, 2, -1, 1, Q("21 mm")),
    Sketcher.Constraint("DistanceY", 0, 2, -1, 1, Q("10.181256 mm")),
])
pocket10 = doc.addObject("PartDesign::Pocket", "Pocket009")
body2.addObject(pocket10)
pocket10.Profile = sketch21
pocket10.Length = 2
pocket10.Reversed = True

sketch22 = doc.addObject("Sketcher::SketchObject", "Sketch021")
body2.addObject(sketch22)
sketch22.AttachmentSupport = (doc.getObject("XZ_Plane001"), [""])
sketch22.MapMode = "FlatFace"
sketch22.AttachmentOffset = App.Placement(App.Vector(0, 0, 2), App.Rotation())
sketch22.addGeometry([
    Part.LineSegment(App.Vector(-21, -26, 0), App.Vector(-21, -10, 0)),
    Part.LineSegment(App.Vector(-21, -10, 0), App.Vector(21, -10, 0)),
    Part.LineSegment(App.Vector(21, -10, 0), App.Vector(21, -26, 0)),
    Part.LineSegment(App.Vector(21, -26, 0), App.Vector(-21, -26, 0)),
], False)
sketch22.addConstraint([
    Sketcher.Constraint("Coincident", 0, 2, 1, 1),
    Sketcher.Constraint("Coincident", 1, 2, 2, 1),
    Sketcher.Constraint("Coincident", 2, 2, 3, 1),
    Sketcher.Constraint("Coincident", 3, 2, 0, 1),
    Sketcher.Constraint("Vertical", 0),
    Sketcher.Constraint("Horizontal", 1),
    Sketcher.Constraint("Vertical", 2),
    Sketcher.Constraint("Horizontal", 3),
    Sketcher.Constraint("DistanceX", 1, 1, 1, 2, Q("42 mm")),
    Sketcher.Constraint("DistanceY", 0, 1, 0, 2, Q("16 mm")),
    Sketcher.Constraint("DistanceX", 0, 2, -1, 1, Q("21 mm")),
    Sketcher.Constraint("DistanceY", 0, 2, -1, 1, Q("10.181256 mm")),
])
pocket11 = doc.addObject("PartDesign::Pocket", "Pocket010")
body2.addObject(pocket11)
pocket11.Profile = sketch22
pocket11.Length = 23
pocket11.Reversed = True

sketch23 = doc.addObject("Sketcher::SketchObject", "Sketch022")
body2.addObject(sketch23)
sketch23.AttachmentSupport = (doc.getObject("XZ_Plane001"), [""])
sketch23.MapMode = "FlatFace"
sketch23.AttachmentOffset = App.Placement(App.Vector(0, 0, 23), App.Rotation())
sketch23.addGeometry([
    Part.Circle(App.Vector(16, 0, 0), App.Vector(0, 0, 1), 1.6),
    Part.Circle(App.Vector(-16, 0, 0), App.Vector(0, 0, 1), 1.6),
], False)
sketch23.addConstraint([
    Sketcher.Constraint("Equal", 0, 1),
    Sketcher.Constraint("Symmetric", 0, 3, 1, 3, -1, 1),
    Sketcher.Constraint("PointOnObject", 0, 3, -1),
    Sketcher.Constraint("Diameter", 0, Q("3.25 mm")),
    Sketcher.Constraint("DistanceX", -1, 1, 0, 3, Q("16 mm")),
])
pocket12 = doc.addObject("PartDesign::Pocket", "Pocket011")
body2.addObject(pocket12)
pocket12.Profile = sketch23
pocket12.Length = 5
pocket12.Reversed = True

sketch24 = doc.addObject("Sketcher::SketchObject", "Sketch023")
body2.addObject(sketch24)
sketch24.AttachmentSupport = (doc.getObject("XY_Plane001"), [""])
sketch24.MapMode = "FlatFace"
sketch24.AttachmentOffset = App.Placement(App.Vector(0, 0, 25.818744), App.Rotation())
sketch24.addGeometry([
    Part.LineSegment(App.Vector(8, -44, 0), App.Vector(8, -29, 0)),
    Part.LineSegment(App.Vector(8, -29, 0), App.Vector(-8, -29, 0)),
    Part.LineSegment(App.Vector(-8, -29, 0), App.Vector(-8, -44, 0)),
    Part.LineSegment(App.Vector(-8, -44, 0), App.Vector(8, -44, 0)),
], False)
sketch24.addConstraint([
    Sketcher.Constraint("Coincident", 0, 2, 1, 1),
    Sketcher.Constraint("Coincident", 1, 2, 2, 1),
    Sketcher.Constraint("Coincident", 2, 2, 3, 1),
    Sketcher.Constraint("Coincident", 3, 2, 0, 1),
    Sketcher.Constraint("Vertical", 0),
    Sketcher.Constraint("Horizontal", 1),
    Sketcher.Constraint("Vertical", 2),
    Sketcher.Constraint("Horizontal", 3),
    Sketcher.Constraint("Equal", 3, 0),
    Sketcher.Constraint("DistanceX", 1, 2, 1, 1, Q("15 mm")),
    Sketcher.Constraint("DistanceY", 0, 2, -1, 1, Q("29 mm")),
    Sketcher.Constraint("DistanceX", -1, 1, 0, 2, Q("7.5 mm")),
])
pocket13 = doc.addObject("PartDesign::Pocket", "Pocket012")
body2.addObject(pocket13)
pocket13.Profile = sketch24
pocket13.Length = 5

doc.recompute()
